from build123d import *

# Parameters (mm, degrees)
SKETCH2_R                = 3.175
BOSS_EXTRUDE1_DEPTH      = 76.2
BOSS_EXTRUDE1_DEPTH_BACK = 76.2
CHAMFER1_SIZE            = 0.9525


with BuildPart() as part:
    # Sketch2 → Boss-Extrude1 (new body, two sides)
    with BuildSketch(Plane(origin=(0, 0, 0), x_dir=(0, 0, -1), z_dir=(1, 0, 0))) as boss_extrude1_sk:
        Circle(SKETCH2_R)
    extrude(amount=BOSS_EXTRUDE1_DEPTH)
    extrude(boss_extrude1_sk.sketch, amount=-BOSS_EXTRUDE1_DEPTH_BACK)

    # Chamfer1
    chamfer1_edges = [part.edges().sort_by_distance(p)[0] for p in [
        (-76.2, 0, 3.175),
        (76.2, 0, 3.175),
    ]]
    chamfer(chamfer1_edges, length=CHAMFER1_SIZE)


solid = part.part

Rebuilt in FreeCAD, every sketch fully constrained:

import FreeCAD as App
import Part
import Sketcher
Q = App.Units.Quantity


def edges_at(feature, points):
    """Names of the edges that pass closest to the given points."""
    edges = feature.Shape.Edges
    near = lambda p: min(range(len(edges)), key=lambda i: edges[i].distToShape(Part.Vertex(*p))[0])
    return sorted({f"Edge{near(p) + 1}" for p in points})

doc = App.newDocument("Part")
body = doc.addObject("PartDesign::Body", "Body")

# Sketch on YZ plane
sketch1 = body.newObject("Sketcher::SketchObject", "Sketch")
sketch1.AttachmentSupport = (doc.getObject("YZ_Plane"), [""])
sketch1.MapMode = "FlatFace"
sketch1.addGeometry(Part.Circle(App.Vector(0, 0, 0), App.Vector(0, 0, 1), 3.2), False)
sketch1.addConstraint(Sketcher.Constraint("Coincident", 0, 3, -1, 1))
sketch1.addConstraint(Sketcher.Constraint("Diameter", 0, Q("0.25 in")))
pad1 = body.newObject("PartDesign::Pad", "Pad")
pad1.Profile = sketch1
pad1.Type = "TwoLengths"
pad1.Length = Q("3 in")
pad1.Length2 = Q("3 in")
doc.recompute()

chamfer = body.newObject("PartDesign::Chamfer", "Chamfer")
chamfer.Base = (pad1, edges_at(pad1, [(-76.2, 0, 3.175), (76.2, 0, 3.175)]))
chamfer.Size = Q("0.0375 in")

doc.recompute()
